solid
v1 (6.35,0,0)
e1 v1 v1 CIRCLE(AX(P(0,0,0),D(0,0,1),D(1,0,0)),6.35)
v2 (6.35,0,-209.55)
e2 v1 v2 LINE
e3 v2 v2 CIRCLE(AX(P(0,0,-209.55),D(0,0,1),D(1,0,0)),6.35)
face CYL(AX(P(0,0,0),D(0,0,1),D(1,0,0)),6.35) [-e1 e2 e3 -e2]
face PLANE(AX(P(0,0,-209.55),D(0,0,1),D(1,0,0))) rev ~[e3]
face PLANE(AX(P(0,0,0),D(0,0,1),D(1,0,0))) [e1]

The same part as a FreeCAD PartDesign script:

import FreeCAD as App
import Part
import Sketcher
from FreeCAD import Vector
Q = App.Units.Quantity

doc = App.newDocument("Part")
body = doc.addObject("PartDesign::Body", "Body")

# Sketch on XY plane
sketch1 = doc.addObject("Sketcher::SketchObject", "Sketch")
body.addObject(sketch1)
sketch1.AttachmentSupport = (doc.XY_Plane, [""])
sketch1.MapMode = "FlatFace"
sketch1.addGeometry(Part.Circle(Vector(0, 0, 0), Vector(0, 0, 1), 6), False)
sketch1.addConstraint([
    Sketcher.Constraint("Coincident", 0, 3, -1, 1),
    Sketcher.Constraint("Diameter", 0, Q("0.5 in")),
])
pad1 = doc.addObject("PartDesign::Pad", "Pad")
body.addObject(pad1)
pad1.Profile = sketch1
pad1.Length = Q("8.25 in")
pad1.Reversed = True

doc.recompute()
